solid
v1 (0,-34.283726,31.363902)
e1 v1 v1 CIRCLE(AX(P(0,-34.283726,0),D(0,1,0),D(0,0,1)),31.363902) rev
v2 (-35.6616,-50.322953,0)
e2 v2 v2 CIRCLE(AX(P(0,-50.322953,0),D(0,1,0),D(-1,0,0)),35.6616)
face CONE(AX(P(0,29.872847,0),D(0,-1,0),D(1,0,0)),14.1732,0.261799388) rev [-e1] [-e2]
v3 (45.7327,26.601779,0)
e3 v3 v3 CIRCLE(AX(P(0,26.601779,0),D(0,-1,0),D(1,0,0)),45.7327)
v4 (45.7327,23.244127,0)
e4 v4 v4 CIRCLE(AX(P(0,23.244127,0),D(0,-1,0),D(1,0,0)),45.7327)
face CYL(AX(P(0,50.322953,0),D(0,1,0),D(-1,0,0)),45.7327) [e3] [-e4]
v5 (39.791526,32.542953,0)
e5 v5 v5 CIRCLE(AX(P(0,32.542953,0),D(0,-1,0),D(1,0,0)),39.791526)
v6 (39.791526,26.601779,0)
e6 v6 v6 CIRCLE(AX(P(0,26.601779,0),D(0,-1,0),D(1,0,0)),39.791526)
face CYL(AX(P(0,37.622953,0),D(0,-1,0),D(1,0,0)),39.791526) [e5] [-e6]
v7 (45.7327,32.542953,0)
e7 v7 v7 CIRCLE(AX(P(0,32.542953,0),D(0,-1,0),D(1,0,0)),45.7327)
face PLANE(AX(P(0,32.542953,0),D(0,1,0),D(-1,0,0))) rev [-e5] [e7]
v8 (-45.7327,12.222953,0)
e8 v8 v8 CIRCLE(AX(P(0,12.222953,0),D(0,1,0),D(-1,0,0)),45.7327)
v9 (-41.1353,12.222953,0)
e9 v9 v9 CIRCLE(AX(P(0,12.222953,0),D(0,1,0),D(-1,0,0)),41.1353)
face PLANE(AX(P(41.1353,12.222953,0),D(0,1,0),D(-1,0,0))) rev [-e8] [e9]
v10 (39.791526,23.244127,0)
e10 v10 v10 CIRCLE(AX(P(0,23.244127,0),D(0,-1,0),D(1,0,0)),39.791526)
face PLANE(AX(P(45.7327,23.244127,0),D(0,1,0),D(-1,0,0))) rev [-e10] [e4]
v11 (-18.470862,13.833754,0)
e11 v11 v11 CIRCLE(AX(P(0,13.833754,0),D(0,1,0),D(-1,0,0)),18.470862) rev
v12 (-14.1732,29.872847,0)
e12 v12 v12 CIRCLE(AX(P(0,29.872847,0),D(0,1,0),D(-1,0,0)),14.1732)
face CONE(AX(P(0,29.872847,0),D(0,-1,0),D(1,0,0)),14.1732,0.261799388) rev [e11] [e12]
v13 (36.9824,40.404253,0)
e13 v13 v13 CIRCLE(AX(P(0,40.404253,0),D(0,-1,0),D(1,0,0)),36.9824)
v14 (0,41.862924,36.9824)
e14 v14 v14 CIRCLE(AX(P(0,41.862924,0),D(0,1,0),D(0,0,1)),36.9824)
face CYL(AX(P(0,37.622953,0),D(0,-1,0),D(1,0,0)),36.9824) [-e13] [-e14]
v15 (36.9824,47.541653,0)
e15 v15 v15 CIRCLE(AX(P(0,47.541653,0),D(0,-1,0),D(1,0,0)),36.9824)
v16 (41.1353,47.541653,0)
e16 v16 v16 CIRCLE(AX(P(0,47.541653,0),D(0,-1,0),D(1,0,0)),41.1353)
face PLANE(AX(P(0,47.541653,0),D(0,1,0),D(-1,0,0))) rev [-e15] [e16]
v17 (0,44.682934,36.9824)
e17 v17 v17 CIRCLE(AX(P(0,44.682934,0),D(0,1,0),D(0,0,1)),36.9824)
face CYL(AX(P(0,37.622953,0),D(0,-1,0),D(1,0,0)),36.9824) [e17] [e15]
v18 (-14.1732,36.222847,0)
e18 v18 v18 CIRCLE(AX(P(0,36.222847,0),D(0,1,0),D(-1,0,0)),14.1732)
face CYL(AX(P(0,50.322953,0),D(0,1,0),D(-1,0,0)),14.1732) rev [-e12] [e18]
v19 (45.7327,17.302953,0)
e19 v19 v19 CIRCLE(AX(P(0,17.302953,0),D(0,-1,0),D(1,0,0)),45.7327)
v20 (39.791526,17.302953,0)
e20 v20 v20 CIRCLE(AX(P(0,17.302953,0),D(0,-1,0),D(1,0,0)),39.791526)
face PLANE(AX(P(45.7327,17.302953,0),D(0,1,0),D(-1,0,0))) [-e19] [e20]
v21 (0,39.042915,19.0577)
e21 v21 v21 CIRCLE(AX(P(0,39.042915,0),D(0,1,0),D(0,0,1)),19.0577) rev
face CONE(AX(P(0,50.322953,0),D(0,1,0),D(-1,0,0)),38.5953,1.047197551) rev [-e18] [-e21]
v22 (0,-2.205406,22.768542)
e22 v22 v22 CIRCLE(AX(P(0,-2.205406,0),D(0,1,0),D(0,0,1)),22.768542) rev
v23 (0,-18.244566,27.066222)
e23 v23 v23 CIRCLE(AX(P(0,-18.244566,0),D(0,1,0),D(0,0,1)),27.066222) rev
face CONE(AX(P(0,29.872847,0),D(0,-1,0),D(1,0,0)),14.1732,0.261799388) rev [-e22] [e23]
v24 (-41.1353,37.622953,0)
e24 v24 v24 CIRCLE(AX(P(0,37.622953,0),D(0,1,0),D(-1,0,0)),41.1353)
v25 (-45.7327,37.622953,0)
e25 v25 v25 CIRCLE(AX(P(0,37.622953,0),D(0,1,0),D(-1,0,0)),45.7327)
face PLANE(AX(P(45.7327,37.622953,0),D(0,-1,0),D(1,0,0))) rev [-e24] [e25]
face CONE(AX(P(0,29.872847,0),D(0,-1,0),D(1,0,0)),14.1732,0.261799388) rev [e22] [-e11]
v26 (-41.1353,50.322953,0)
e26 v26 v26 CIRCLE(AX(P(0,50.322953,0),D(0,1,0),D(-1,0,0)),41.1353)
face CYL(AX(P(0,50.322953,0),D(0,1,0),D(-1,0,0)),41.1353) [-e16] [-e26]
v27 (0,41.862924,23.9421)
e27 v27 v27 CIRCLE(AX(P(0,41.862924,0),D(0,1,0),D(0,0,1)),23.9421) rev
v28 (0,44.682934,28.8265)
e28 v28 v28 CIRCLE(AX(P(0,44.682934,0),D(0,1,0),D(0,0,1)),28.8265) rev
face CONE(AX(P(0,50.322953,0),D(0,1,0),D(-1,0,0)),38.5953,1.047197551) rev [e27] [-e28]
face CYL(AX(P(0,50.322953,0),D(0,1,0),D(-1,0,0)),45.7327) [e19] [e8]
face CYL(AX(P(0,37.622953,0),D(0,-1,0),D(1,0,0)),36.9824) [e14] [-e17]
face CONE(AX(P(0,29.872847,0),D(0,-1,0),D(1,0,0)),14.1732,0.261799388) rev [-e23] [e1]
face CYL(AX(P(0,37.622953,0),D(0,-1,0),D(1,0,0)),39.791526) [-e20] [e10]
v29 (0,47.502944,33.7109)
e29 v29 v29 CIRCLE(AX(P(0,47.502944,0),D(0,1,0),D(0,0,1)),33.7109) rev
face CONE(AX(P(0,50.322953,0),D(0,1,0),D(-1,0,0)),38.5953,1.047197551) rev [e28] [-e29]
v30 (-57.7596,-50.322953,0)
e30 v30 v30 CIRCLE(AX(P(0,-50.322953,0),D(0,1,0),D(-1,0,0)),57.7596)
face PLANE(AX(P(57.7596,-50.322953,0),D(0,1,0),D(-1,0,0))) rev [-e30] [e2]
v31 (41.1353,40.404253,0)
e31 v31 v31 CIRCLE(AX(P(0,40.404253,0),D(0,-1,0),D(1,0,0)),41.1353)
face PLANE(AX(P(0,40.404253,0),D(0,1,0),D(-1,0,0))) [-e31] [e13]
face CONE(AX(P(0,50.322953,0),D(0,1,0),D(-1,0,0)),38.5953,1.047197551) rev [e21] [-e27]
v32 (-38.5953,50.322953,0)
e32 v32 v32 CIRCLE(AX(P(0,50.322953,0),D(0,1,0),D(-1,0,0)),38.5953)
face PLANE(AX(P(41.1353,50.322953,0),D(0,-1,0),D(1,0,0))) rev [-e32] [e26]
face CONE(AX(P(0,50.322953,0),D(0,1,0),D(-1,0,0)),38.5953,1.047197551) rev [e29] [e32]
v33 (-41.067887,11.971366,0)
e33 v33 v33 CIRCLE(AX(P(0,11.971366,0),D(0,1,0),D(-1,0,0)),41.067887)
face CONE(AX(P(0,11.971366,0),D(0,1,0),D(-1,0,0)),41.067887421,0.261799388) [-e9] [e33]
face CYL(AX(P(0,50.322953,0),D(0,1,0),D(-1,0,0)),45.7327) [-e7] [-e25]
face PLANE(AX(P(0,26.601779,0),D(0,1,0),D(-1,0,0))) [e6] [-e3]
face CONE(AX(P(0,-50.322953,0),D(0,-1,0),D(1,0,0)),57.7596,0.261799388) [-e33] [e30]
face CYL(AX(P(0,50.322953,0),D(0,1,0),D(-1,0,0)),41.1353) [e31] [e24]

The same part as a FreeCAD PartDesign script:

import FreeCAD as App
import Part
import Sketcher
from FreeCAD import Vector
Q = App.Units.Quantity

doc = App.newDocument("Part")
params = doc.addObject("Spreadsheet::Sheet", "Params")
for row, (alias, value) in enumerate([
    ("sketch1_height", "1 in"),
    ("sketch1_width", "0.1 in"),
    ("sketch1_height2", "0.5 in"),
    ("sketch1_width2", "0.87 in"),
    ("sketch1_height3", "0.25 in"),
    ("revolution_angle", "360 deg"),
    ("sketch2_height", "0.281 in"),
    ("groove_angle", "360 deg"),
], start=1):
    params.set(f"A{row}", alias)
    params.set(f"B{row}", "=" + value)
    params.setAlias(f"B{row}", alias)

body = doc.addObject("PartDesign::Body", "Body")

# Sketch on XY plane
sketch1 = body.newObject("Sketcher::SketchObject", "Sketch")
sketch1.AttachmentSupport = (doc.getObject("XY_Plane"), [""])
sketch1.MapMode = "FlatFace"
sketch1.addGeometry([
    Part.LineSegment(Vector(41.1353, 50.322953, 0), Vector(38.5953, 50.322953, 0)),  # 0
    Part.LineSegment(Vector(38.5953, 50.322953, 0), Vector(14.1732, 36.222847, 0)),  # 1
    Part.LineSegment(Vector(14.1732, 36.222847, 0), Vector(14.1732, 29.872847, 0)),  # 2
    Part.LineSegment(Vector(14.1732, 29.872847, 0), Vector(35.6616, -50.322953, 0)),  # 3
    Part.LineSegment(Vector(35.6616, -50.322953, 0), Vector(57.7596, -50.322953, 0)),  # 4
    Part.LineSegment(Vector(57.7596, -50.322953, 0), Vector(41.067887, 11.971366, 0)),  # 5
    Part.LineSegment(Vector(41.067887, 11.971366, 0), Vector(41.1353, 12.222953, 0)),  # 6
    Part.LineSegment(Vector(41.1353, 12.222953, 0), Vector(45.7327, 12.222953, 0)),  # 7
    Part.LineSegment(Vector(45.7327, 12.222953, 0), Vector(45.7327, 37.622953, 0)),  # 8
    Part.LineSegment(Vector(45.7327, 37.622953, 0), Vector(41.1353, 37.622953, 0)),  # 9
    Part.LineSegment(Vector(41.1353, 37.622953, 0), Vector(41.1353, 50.322953, 0)),  # 10
], False)
sketch1.addConstraint([
    Sketcher.Constraint("Coincident", 0, 2, 1, 1),
    Sketcher.Constraint("Coincident", 1, 2, 2, 1),
    Sketcher.Constraint("Coincident", 2, 2, 3, 1),
    Sketcher.Constraint("Coincident", 3, 2, 4, 1),
    Sketcher.Constraint("Coincident", 4, 2, 5, 1),
    Sketcher.Constraint("Coincident", 5, 2, 6, 1),
    Sketcher.Constraint("Coincident", 6, 2, 7, 1),
    Sketcher.Constraint("Coincident", 7, 2, 8, 1),
    Sketcher.Constraint("Coincident", 8, 2, 9, 1),
    Sketcher.Constraint("Coincident", 9, 2, 10, 1),
    Sketcher.Constraint("Coincident", 10, 2, 0, 1),
    Sketcher.Constraint("Horizontal", 0),
    Sketcher.Constraint("Vertical", 2),
    Sketcher.Constraint("Horizontal", 4),
    Sketcher.Constraint("Horizontal", 7),
    Sketcher.Constraint("Vertical", 8),
    Sketcher.Constraint("Horizontal", 9),
    Sketcher.Constraint("Vertical", 10),
    Sketcher.Constraint("Parallel", 3, 5),
    Sketcher.Constraint("Vertical", 6, 2, 9, 2),
    Sketcher.Constraint("DistanceY", 8, 1, 8, 2, Q("1 in")),
    Sketcher.Constraint("DistanceX", 0, 2, 0, 1, Q("0.1 in")),
    Sketcher.Constraint("DistanceY", 10, 1, 10, 2, Q("0.5 in")),
    Sketcher.Constraint("Angle", 1, Q("-150 deg")),
    Sketcher.Constraint("Angle", 3, Q("-75 deg")),
    Sketcher.Constraint("Angle", 6, Q("75 deg")),
    Sketcher.Constraint("DistanceX", 4, 1, 4, 2, Q("0.87 in")),
    Sketcher.Constraint("DistanceY", 2, 2, 2, 1, Q("0.25 in")),
    Sketcher.Constraint("DistanceX", 7, 1, 7, 2, Q("0.181 in")),
    Sketcher.Constraint("DistanceX", -1, 1, 1, 2, Q("0.558 in")),
    Sketcher.Constraint("DistanceX", -1, 1, 3, 2, Q("1.404 in")),
    Sketcher.Constraint("DistanceX", -1, 1, 0, 2, Q("1.5195 in")),
    Sketcher.Constraint("DistanceY", -1, 1, 0, 2, 50.322953),
])
sketch1.setExpression("Constraints[20]", "Params.sketch1_height")
sketch1.setExpression("Constraints[21]", "Params.sketch1_width")
sketch1.setExpression("Constraints[22]", "Params.sketch1_height2")
sketch1.setExpression("Constraints[26]", "Params.sketch1_width2")
sketch1.setExpression("Constraints[27]", "Params.sketch1_height3")
revolution = body.newObject("PartDesign::Revolution", "Revolution")
revolution.Profile = sketch1
revolution.ReferenceAxis = (sketch1, ["V_Axis"])
revolution.setExpression("Angle", "Params.revolution_angle")

# Sketch on XY plane
sketch2 = body.newObject("Sketcher::SketchObject", "Sketch001")
sketch2.AttachmentSupport = (doc.getObject("XY_Plane"), [""])
sketch2.MapMode = "FlatFace"
sketch2.addGeometry([
    Part.LineSegment(Vector(36.9824, 47.541653, 0), Vector(36.9824, 40.404253, 0)),  # 0
    Part.LineSegment(Vector(36.9824, 40.404253, 0), Vector(41.1353, 40.404253, 0)),  # 1
    Part.LineSegment(Vector(41.1353, 40.404253, 0), Vector(41.1353, 47.541653, 0)),  # 2
    Part.LineSegment(Vector(41.1353, 47.541653, 0), Vector(36.9824, 47.541653, 0)),  # 3
    Part.LineSegment(Vector(39.791526, 32.542953, 0), Vector(39.791526, 26.601779, 0)),  # 4
    Part.LineSegment(Vector(39.791526, 26.601779, 0), Vector(45.7327, 26.601779, 0)),  # 5
    Part.LineSegment(Vector(45.7327, 26.601779, 0), Vector(45.7327, 32.542953, 0)),  # 6
    Part.LineSegment(Vector(45.7327, 32.542953, 0), Vector(39.791526, 32.542953, 0)),  # 7
    Part.LineSegment(Vector(39.791526, 23.244127, 0), Vector(39.791526, 17.302953, 0)),  # 8
    Part.LineSegment(Vector(39.791526, 17.302953, 0), Vector(45.7327, 17.302953, 0)),  # 9
    Part.LineSegment(Vector(45.7327, 17.302953, 0), Vector(45.7327, 23.244127, 0)),  # 10
    Part.LineSegment(Vector(45.7327, 23.244127, 0), Vector(39.791526, 23.244127, 0)),  # 11
], False)
sketch2.addConstraint([
    Sketcher.Constraint("Coincident", 0, 2, 1, 1),
    Sketcher.Constraint("Coincident", 1, 2, 2, 1),
    Sketcher.Constraint("Coincident", 2, 2, 3, 1),
    Sketcher.Constraint("Coincident", 3, 2, 0, 1),
    Sketcher.Constraint("Coincident", 4, 2, 5, 1),
    Sketcher.Constraint("Coincident", 5, 2, 6, 1),
    Sketcher.Constraint("Coincident", 6, 2, 7, 1),
    Sketcher.Constraint("Coincident", 7, 2, 4, 1),
    Sketcher.Constraint("Coincident", 8, 2, 9, 1),
    Sketcher.Constraint("Coincident", 9, 2, 10, 1),
    Sketcher.Constraint("Coincident", 10, 2, 11, 1),
    Sketcher.Constraint("Coincident", 11, 2, 8, 1),
    Sketcher.Constraint("Vertical", 0),
    Sketcher.Constraint("Horizontal", 1),
    Sketcher.Constraint("Vertical", 2),
    Sketcher.Constraint("Horizontal", 3),
    Sketcher.Constraint("Vertical", 4),
    Sketcher.Constraint("Horizontal", 5),
    Sketcher.Constraint("Vertical", 6),
    Sketcher.Constraint("Horizontal", 7),
    Sketcher.Constraint("Vertical", 8),
    Sketcher.Constraint("Horizontal", 9),
    Sketcher.Constraint("Vertical", 10),
    Sketcher.Constraint("Horizontal", 11),
    Sketcher.Constraint("Vertical", 7, 2, 8, 2),
    Sketcher.Constraint("Vertical", 6, 2, 9, 2),
    Sketcher.Constraint("Equal", 11, 4),
    Sketcher.Constraint("Equal", 6, 8),
    Sketcher.Constraint("DistanceY", 8, 2, 7, 2, Q("0.6 in")),
    Sketcher.Constraint("DistanceY", 0, 2, 0, 1, Q("0.281 in")),
    Sketcher.Constraint("DistanceX", 1, 1, 1, 2, Q("0.1635 in")),
    Sketcher.Constraint("DistanceX", -1, 1, 0, 2, Q("1.456 in")),
    Sketcher.Constraint("DistanceX", 1, 2, 5, 2, Q("0.181 in")),
    Sketcher.Constraint("DistanceY", 6, 2, 1, 2, Q("0.3095 in")),
    Sketcher.Constraint("DistanceX", 5, 1, 5, 2, 5.941174),
    Sketcher.Constraint("DistanceY", -1, 1, 4, 2, 26.601779),
])
sketch2.setExpression("Constraints[29]", "Params.sketch2_height")
groove = body.newObject("PartDesign::Groove", "Groove")
groove.Profile = sketch2
groove.ReferenceAxis = (sketch2, ["V_Axis"])
groove.setExpression("Angle", "Params.groove_angle")

doc.recompute()
